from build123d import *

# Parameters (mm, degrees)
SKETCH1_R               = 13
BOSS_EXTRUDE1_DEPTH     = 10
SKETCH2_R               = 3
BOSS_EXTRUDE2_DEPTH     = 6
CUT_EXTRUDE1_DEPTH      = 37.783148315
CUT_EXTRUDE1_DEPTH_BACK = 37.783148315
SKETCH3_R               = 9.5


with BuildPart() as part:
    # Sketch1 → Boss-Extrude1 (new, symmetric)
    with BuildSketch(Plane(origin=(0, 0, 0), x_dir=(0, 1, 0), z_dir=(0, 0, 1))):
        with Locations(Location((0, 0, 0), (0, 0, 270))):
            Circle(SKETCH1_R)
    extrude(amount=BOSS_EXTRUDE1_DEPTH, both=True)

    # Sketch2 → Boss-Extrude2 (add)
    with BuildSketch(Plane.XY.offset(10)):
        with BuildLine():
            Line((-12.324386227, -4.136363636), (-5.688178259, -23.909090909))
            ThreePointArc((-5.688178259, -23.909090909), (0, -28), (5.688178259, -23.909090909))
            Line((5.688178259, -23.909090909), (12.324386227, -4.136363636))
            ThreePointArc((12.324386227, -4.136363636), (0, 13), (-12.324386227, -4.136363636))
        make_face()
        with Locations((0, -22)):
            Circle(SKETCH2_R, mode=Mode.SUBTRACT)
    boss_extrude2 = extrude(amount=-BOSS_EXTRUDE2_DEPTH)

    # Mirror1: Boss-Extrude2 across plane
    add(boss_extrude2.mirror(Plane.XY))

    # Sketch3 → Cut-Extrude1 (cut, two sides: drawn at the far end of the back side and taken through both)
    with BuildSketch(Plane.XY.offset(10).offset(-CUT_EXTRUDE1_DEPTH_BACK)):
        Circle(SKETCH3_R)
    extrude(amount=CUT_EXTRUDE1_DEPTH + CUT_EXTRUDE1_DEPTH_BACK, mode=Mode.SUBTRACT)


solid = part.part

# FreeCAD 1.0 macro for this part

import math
import FreeCAD as App
import Part
import Sketcher
Q = App.Units.Quantity

doc = App.newDocument("Part")
params = doc.addObject("Spreadsheet::Sheet", "Params")
for row, (alias, value) in enumerate([
    ("sketch1_diameter", "26 mm"),
    ("pad1_length", "20 mm"),
    ("sketch2_diameter", "6 mm"),
    ("sketch2_radius", "6 mm"),
    ("sketch2_radius2", "13 mm"),
    ("pad2_length", "6 mm"),
    ("sketch3_diameter", "19 mm"),
], start=1):
    params.set(f"A{row}", alias)
    params.set(f"B{row}", "=" + value)
    params.setAlias(f"B{row}", alias)

body = doc.addObject("PartDesign::Body", "Body")

# Sketch on XY plane
sketch1 = body.newObject("Sketcher::SketchObject", "Sketch")
sketch1.AttachmentSupport = (doc.getObject("XY_Plane"), [""])
sketch1.MapMode = "FlatFace"
sketch1.addGeometry(Part.Circle(App.Vector(0, 0, 0), App.Vector(0, 0, 1), 13), False)
sketch1.addConstraint([
    Sketcher.Constraint("Coincident", 0, 3, -1, 1),
    Sketcher.Constraint("Diameter", 0, Q("26 mm")),
])
sketch1.setExpression("Constraints[1]", "Params.sketch1_diameter")
pad1 = body.newObject("PartDesign::Pad", "Pad")
pad1.Profile = sketch1
pad1.setExpression("Length", "Params.pad1_length")
pad1.Midplane = True

# Sketch on XY plane
sketch2 = body.newObject("Sketcher::SketchObject", "Sketch001")
sketch2.AttachmentSupport = (doc.getObject("XY_Plane"), [""])
sketch2.MapMode = "FlatFace"
sketch2.AttachmentOffset = App.Placement(App.Vector(0, 0, 10), App.Rotation())
sketch2.addGeometry([
    Part.LineSegment(App.Vector(-12.3, -4.1, 0), App.Vector(-5.7, -23.9, 0)),  # 0
    Part.ArcOfCircle(Part.Circle(App.Vector(0, -22, 0), App.Vector(0, 0, 1), 6), math.radians(-161), math.radians(-19)),  # 1
    Part.LineSegment(App.Vector(5.7, -23.9, 0), App.Vector(12.3, -4.1, 0)),  # 2
    Part.ArcOfCircle(Part.Circle(App.Vector(0, 0, 0), App.Vector(0, 0, 1), 13), math.radians(-19), math.radians(199)),  # 3
    Part.Circle(App.Vector(0, -22, 0), App.Vector(0, 0, 1), 3),  # 4
], False)
sketch2.addConstraint([
    Sketcher.Constraint("Tangent", 0, 2, 1, 1),
    Sketcher.Constraint("Tangent", 1, 2, 2, 1),
    Sketcher.Constraint("Tangent", 2, 2, 3, 1),
    Sketcher.Constraint("Tangent", 3, 2, 0, 1),
    Sketcher.Constraint("Coincident", 3, 3, -1, 1),
    Sketcher.Constraint("Coincident", 4, 3, 1, 3),
    Sketcher.Constraint("PointOnObject", 1, 3, -2),
    Sketcher.Constraint("Diameter", 4, Q("6 mm")),
    Sketcher.Constraint("Radius", 1, Q("6 mm")),
    Sketcher.Constraint("Radius", 3, Q("13 mm")),
    Sketcher.Constraint("DistanceY", 1, 3, -1, 1, Q("22 mm")),
])
sketch2.setExpression("Constraints[7]", "Params.sketch2_diameter")
sketch2.setExpression("Constraints[8]", "Params.sketch2_radius")
sketch2.setExpression("Constraints[9]", "Params.sketch2_radius2")
pad2 = body.newObject("PartDesign::Pad", "Pad001")
pad2.Profile = sketch2
pad2.setExpression("Length", "Params.pad2_length")
pad2.Reversed = True
doc.recompute()

mirrored = body.newObject("PartDesign::Mirrored", "Mirrored")
mirrored.Originals = [pad2]
mirrored.MirrorPlane = (doc.getObject("XY_Plane"), [""])
body.Tip = mirrored

# Sketch on XY plane
sketch3 = body.newObject("Sketcher::SketchObject", "Sketch002")
sketch3.AttachmentSupport = (doc.getObject("XY_Plane"), [""])
sketch3.MapMode = "FlatFace"
sketch3.AttachmentOffset = App.Placement(App.Vector(0, 0, 10), App.Rotation())
sketch3.addGeometry(Part.Circle(App.Vector(0, 0, 0), App.Vector(0, 0, 1), 10), False)
sketch3.addConstraint([
    Sketcher.Constraint("Coincident", 0, 3, -1, 1),
    Sketcher.Constraint("Diameter", 0, Q("19 mm")),
])
sketch3.setExpression("Constraints[1]", "Params.sketch3_diameter")
pocket1 = body.newObject("PartDesign::Pocket", "Pocket")
pocket1.Profile = sketch3
pocket1.Type = "ThroughAll"
pocket1.Midplane = True

doc.recompute()
